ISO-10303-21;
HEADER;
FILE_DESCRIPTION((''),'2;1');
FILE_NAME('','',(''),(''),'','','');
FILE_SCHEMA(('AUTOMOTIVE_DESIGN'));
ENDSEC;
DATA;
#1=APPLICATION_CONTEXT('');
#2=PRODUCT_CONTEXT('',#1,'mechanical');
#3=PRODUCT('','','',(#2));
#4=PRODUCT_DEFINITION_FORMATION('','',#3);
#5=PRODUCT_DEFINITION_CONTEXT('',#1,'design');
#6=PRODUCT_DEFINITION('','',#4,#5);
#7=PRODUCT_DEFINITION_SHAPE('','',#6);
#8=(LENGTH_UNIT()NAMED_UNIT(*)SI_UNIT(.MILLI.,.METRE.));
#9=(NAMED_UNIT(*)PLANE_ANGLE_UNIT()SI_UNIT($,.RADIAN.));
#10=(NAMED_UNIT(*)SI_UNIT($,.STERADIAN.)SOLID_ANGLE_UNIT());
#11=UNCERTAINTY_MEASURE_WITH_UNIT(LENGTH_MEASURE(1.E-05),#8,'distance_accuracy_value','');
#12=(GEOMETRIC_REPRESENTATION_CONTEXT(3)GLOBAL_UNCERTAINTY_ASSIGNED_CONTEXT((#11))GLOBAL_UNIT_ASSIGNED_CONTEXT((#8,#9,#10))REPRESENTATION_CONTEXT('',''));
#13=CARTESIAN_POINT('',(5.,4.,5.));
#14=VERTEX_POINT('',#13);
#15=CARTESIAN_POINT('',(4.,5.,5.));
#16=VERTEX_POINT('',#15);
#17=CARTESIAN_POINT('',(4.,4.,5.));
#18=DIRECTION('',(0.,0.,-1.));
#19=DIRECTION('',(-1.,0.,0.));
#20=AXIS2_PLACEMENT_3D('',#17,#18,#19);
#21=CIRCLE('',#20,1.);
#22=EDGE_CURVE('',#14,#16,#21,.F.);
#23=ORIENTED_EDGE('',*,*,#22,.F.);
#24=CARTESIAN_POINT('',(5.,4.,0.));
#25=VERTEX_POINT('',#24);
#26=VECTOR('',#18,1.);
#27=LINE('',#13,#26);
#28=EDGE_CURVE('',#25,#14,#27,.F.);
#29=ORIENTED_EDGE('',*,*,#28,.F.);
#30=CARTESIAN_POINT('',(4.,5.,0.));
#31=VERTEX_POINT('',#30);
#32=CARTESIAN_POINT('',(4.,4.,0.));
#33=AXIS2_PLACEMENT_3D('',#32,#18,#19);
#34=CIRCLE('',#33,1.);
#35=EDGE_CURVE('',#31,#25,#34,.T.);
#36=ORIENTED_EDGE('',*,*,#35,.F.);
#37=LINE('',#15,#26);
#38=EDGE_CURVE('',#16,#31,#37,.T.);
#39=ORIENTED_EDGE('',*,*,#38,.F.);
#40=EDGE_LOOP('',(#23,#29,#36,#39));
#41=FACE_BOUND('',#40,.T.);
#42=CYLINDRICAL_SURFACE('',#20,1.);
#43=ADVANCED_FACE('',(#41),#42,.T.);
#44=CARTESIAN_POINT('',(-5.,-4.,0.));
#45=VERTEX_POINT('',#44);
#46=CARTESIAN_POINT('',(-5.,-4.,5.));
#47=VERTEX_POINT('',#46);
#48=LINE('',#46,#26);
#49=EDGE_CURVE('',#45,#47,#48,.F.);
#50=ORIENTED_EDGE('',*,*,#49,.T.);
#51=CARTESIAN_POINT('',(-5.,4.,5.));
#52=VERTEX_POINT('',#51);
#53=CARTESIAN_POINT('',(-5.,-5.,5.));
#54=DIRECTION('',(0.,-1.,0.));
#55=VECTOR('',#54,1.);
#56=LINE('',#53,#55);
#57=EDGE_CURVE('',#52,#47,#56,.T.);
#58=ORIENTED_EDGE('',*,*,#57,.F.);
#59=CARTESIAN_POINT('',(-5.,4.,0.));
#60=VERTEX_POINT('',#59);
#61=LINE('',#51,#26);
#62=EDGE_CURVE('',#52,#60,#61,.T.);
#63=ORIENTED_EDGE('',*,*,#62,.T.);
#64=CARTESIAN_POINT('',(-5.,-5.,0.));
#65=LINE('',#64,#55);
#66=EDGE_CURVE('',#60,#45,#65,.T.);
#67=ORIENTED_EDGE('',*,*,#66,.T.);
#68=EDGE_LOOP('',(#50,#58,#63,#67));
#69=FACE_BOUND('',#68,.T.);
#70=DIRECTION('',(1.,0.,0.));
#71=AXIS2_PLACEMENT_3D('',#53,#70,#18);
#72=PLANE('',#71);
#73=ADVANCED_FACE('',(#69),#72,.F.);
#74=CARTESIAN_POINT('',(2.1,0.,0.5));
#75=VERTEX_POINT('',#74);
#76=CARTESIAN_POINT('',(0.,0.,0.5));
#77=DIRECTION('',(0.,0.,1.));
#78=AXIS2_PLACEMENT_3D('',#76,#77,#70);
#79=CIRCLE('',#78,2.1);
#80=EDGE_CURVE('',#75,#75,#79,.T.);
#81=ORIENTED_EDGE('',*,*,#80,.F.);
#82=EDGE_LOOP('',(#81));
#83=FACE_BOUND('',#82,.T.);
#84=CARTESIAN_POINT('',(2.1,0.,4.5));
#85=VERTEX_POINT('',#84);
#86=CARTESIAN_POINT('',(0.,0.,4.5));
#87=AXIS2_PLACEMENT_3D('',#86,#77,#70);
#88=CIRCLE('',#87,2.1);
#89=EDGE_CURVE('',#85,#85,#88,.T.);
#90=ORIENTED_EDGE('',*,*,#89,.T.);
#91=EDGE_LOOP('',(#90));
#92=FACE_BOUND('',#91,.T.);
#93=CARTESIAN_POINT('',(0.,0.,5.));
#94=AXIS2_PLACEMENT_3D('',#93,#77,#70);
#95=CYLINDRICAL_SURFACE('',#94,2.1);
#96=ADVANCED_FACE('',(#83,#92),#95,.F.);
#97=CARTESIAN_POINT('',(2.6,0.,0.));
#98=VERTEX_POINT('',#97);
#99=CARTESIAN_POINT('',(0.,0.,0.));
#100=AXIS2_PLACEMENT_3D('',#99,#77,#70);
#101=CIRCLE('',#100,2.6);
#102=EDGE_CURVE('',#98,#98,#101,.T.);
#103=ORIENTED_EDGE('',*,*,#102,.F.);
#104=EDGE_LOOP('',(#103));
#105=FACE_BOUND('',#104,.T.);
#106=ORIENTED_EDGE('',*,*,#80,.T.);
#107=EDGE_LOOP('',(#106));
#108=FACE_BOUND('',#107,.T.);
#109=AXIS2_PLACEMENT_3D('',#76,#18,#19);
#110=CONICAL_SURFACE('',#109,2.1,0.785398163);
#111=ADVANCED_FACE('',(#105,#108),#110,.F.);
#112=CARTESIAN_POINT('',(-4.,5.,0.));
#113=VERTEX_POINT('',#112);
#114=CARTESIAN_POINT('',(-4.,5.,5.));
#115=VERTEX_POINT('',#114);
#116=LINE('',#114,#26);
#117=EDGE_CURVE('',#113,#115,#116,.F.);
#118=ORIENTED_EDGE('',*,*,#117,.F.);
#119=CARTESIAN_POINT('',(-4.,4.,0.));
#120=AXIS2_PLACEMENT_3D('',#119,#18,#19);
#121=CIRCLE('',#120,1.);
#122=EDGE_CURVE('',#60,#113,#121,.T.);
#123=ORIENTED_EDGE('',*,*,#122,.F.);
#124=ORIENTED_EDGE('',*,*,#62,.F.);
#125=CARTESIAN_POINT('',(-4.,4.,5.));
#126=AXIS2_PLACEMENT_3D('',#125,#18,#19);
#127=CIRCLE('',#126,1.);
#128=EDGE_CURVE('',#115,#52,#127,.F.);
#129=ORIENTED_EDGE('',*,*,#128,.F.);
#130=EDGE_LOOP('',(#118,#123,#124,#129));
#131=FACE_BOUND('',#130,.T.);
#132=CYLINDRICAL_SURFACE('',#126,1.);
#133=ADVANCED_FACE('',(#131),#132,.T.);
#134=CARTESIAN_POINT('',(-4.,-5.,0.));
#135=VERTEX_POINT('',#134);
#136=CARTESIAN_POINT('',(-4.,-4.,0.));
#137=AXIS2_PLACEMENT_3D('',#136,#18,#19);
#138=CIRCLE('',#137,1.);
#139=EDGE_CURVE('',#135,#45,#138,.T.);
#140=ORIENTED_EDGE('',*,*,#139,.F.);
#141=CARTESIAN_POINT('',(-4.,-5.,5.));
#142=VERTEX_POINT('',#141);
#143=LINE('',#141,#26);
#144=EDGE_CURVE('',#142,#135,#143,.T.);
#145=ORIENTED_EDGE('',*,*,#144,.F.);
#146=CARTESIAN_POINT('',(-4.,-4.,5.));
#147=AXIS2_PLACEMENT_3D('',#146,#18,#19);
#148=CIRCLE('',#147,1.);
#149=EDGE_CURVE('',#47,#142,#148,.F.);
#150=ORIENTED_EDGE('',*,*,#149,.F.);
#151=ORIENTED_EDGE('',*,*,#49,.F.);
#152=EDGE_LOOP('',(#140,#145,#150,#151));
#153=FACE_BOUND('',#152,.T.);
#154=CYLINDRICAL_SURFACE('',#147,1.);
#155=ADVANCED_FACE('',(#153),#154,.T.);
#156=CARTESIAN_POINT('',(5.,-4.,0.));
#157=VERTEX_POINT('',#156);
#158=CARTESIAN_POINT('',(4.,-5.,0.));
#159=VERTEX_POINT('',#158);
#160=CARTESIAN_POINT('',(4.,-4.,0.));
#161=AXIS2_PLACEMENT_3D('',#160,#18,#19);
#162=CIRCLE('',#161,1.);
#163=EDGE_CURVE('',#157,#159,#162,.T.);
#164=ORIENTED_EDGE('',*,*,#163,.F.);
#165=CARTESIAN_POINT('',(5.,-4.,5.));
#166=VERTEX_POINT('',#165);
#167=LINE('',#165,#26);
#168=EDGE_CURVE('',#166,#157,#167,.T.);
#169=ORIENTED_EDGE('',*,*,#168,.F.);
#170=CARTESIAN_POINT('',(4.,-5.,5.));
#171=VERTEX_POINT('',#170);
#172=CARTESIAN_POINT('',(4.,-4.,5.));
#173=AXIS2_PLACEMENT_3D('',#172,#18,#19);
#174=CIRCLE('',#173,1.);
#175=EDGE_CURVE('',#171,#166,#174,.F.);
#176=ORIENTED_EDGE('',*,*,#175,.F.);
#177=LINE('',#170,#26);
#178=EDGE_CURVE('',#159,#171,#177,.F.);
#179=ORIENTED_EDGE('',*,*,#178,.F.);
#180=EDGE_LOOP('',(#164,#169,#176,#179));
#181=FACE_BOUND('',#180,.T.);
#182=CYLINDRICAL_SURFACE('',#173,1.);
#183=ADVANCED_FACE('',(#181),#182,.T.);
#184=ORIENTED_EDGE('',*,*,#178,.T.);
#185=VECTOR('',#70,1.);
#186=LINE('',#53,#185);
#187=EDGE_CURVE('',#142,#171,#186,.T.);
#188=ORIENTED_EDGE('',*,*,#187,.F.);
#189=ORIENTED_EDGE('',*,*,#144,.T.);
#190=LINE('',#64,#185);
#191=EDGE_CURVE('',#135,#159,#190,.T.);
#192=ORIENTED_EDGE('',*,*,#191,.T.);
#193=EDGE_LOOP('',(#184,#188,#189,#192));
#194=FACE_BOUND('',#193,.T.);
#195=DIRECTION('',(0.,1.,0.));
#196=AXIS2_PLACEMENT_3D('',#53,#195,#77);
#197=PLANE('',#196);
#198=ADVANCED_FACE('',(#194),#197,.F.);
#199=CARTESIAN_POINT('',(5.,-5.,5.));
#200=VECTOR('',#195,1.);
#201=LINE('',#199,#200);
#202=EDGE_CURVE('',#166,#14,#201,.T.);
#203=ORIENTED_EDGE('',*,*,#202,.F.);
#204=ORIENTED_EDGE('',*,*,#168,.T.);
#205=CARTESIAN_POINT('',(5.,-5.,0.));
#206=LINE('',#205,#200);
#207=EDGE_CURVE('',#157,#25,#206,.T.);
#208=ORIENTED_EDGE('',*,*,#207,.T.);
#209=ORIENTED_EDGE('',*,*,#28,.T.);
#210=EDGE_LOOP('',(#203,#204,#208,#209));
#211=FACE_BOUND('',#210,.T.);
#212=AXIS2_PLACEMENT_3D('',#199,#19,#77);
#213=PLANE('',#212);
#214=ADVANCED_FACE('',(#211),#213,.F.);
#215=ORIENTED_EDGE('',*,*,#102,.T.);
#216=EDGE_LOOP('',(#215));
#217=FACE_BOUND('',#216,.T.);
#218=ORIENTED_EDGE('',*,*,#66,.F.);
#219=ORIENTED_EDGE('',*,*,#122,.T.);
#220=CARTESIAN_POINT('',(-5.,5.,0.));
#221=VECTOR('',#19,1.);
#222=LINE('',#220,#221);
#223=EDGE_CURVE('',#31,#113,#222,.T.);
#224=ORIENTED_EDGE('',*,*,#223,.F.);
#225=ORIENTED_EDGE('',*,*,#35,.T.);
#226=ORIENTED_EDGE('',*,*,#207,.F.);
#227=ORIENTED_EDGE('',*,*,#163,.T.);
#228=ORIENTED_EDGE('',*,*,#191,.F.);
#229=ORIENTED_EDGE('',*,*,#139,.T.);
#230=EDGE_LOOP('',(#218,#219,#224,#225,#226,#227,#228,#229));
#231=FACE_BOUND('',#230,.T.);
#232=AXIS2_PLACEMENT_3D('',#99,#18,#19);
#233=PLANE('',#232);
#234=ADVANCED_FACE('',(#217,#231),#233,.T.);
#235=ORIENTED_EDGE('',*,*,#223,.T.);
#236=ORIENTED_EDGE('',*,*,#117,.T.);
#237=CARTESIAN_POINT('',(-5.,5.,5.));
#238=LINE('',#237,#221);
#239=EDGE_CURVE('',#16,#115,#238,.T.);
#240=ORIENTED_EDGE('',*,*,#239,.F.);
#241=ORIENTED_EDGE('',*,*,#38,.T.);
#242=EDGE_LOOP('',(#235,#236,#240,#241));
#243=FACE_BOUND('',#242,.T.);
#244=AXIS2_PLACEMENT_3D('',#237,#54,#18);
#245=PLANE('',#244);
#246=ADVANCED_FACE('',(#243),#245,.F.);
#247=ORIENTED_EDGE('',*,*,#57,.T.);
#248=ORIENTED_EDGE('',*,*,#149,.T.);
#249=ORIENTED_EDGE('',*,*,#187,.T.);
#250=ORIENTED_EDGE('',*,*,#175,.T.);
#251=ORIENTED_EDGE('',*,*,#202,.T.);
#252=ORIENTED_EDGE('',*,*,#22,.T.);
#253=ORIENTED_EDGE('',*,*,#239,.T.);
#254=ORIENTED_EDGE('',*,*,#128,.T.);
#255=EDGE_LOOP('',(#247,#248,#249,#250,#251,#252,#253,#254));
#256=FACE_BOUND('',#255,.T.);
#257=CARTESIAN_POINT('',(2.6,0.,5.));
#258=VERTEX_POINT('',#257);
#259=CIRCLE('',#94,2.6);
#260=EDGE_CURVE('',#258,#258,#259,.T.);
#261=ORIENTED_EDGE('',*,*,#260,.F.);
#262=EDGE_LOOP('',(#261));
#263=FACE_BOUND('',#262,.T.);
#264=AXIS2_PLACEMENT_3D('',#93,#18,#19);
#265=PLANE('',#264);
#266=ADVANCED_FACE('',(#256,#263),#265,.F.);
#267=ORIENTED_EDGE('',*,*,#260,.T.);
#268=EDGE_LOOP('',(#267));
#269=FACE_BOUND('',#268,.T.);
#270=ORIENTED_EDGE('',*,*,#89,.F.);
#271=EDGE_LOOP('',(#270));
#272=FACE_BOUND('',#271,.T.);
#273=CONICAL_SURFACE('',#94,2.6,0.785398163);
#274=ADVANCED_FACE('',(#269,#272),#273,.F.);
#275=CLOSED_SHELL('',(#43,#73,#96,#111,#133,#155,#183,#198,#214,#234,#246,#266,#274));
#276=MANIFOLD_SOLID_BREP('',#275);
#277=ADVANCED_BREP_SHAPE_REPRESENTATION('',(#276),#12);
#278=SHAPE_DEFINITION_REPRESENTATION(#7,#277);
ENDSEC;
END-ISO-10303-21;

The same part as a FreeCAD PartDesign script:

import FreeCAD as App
import Part
import Sketcher
from FreeCAD import Vector


def edges_at(feature, points):
    """Names of the edges that pass closest to the given points."""
    edges = feature.Shape.Edges
    near = lambda p: min(range(len(edges)), key=lambda i: edges[i].distToShape(Part.Vertex(*p))[0])
    return sorted({f"Edge{near(p) + 1}" for p in points})

doc = App.newDocument("Part")
params = doc.addObject("Spreadsheet::Sheet", "Params")
for row, (alias, value) in enumerate([
    ("sketch1_width", "10 mm"),
    ("pad1_length", "5 mm"),
    ("sketch2_height", "5 mm"),
    ("sketch2_height2", "4 mm"),
    ("sketch2_width", "2.6 mm"),
    ("groove_angle", "360 deg"),
    ("fillet_radius", "1 mm"),
], start=1):
    params.set(f"A{row}", alias)
    params.set(f"B{row}", "=" + value)
    params.setAlias(f"B{row}", alias)

body = doc.addObject("PartDesign::Body", "Body")

sketch1 = doc.addObject("Sketcher::SketchObject", "Sketch")
body.addObject(sketch1)
sketch1.AttachmentSupport = (doc.XY_Plane, [""])
sketch1.MapMode = "FlatFace"
sketch1.addGeometry([
    Part.LineSegment(Vector(-5, 5, 0), Vector(-5, -5, 0)),
    Part.LineSegment(Vector(-5, -5, 0), Vector(5, -5, 0)),
    Part.LineSegment(Vector(5, -5, 0), Vector(5, 5, 0)),
    Part.LineSegment(Vector(5, 5, 0), Vector(-5, 5, 0)),
], False)
sketch1.addConstraint([
    Sketcher.Constraint("Coincident", 0, 2, 1, 1),
    Sketcher.Constraint("Coincident", 1, 2, 2, 1),
    Sketcher.Constraint("Coincident", 2, 2, 3, 1),
    Sketcher.Constraint("Coincident", 3, 2, 0, 1),
    Sketcher.Constraint("Vertical", 0),
    Sketcher.Constraint("Horizontal", 1),
    Sketcher.Constraint("Vertical", 2),
    Sketcher.Constraint("Horizontal", 3),
    Sketcher.Constraint("Symmetric", 0, 2, 2, 2, -1, 1),
    Sketcher.Constraint("Equal", 3, 0),
    Sketcher.Constraint("DistanceX", 1, 1, 1, 2, 10.0),
])
sketch1.setExpression("Constraints[10]", "Params.sketch1_width")
pad1 = doc.addObject("PartDesign::Pad", "Pad")
body.addObject(pad1)
pad1.Profile = sketch1
pad1.setExpression("Length", "Params.pad1_length")

sketch2 = doc.addObject("Sketcher::SketchObject", "Sketch001")
body.addObject(sketch2)
sketch2.AttachmentSupport = (doc.YZ_Plane, [""])
sketch2.MapMode = "FlatFace"
sketch2.addGeometry([
    Part.LineSegment(Vector(0, 0, 0), Vector(0, 5, 0)),
    Part.LineSegment(Vector(0, 5, 0), Vector(-2.6, 5, 0)),
    Part.LineSegment(Vector(-2.6, 5, 0), Vector(-2.1, 4.5, 0)),
    Part.LineSegment(Vector(-2.1, 4.5, 0), Vector(-2.1, 0.5, 0)),
    Part.LineSegment(Vector(-2.1, 0.5, 0), Vector(-2.6, 0, 0)),
    Part.LineSegment(Vector(-2.6, 0, 0), Vector(0, 0, 0)),
], False)
sketch2.addConstraint([
    Sketcher.Constraint("Coincident", 0, 2, 1, 1),
    Sketcher.Constraint("Coincident", 1, 2, 2, 1),
    Sketcher.Constraint("Coincident", 2, 2, 3, 1),
    Sketcher.Constraint("Coincident", 3, 2, 4, 1),
    Sketcher.Constraint("Coincident", 4, 2, 5, 1),
    Sketcher.Constraint("Coincident", 5, 2, 0, 1),
    Sketcher.Constraint("Vertical", 0),
    Sketcher.Constraint("Horizontal", 1),
    Sketcher.Constraint("Vertical", 3),
    Sketcher.Constraint("Horizontal", 5),
    Sketcher.Constraint("Coincident", 5, 2, -1, 1),
    Sketcher.Constraint("Perpendicular", 2, 4),
    Sketcher.Constraint("Vertical", 1, 2, 4, 2),
    Sketcher.Constraint("Equal", 2, 4),
    Sketcher.Constraint("DistanceY", 0, 1, 0, 2, 5.0),
    Sketcher.Constraint("DistanceY", 3, 2, 3, 1, 4.0),
    Sketcher.Constraint("DistanceX", 1, 2, 1, 1, 2.6),
])
sketch2.setExpression("Constraints[14]", "Params.sketch2_height")
sketch2.setExpression("Constraints[15]", "Params.sketch2_height2")
sketch2.setExpression("Constraints[16]", "Params.sketch2_width")
groove = doc.addObject("PartDesign::Groove", "Groove")
body.addObject(groove)
groove.Profile = sketch2
groove.ReferenceAxis = (sketch2, ["V_Axis"])
groove.setExpression("Angle", "Params.groove_angle")
doc.recompute()

fillet = doc.addObject("PartDesign::Fillet", "Fillet")
body.addObject(fillet)
fillet.Base = (groove, edges_at(groove, [
    (5, -5, 2.5),
    (-5, -5, 2.5),
    (-5, 5, 2.5),
    (5, 5, 2.5),
]))
fillet.setExpression("Radius", "Params.fillet_radius")

doc.recompute()
